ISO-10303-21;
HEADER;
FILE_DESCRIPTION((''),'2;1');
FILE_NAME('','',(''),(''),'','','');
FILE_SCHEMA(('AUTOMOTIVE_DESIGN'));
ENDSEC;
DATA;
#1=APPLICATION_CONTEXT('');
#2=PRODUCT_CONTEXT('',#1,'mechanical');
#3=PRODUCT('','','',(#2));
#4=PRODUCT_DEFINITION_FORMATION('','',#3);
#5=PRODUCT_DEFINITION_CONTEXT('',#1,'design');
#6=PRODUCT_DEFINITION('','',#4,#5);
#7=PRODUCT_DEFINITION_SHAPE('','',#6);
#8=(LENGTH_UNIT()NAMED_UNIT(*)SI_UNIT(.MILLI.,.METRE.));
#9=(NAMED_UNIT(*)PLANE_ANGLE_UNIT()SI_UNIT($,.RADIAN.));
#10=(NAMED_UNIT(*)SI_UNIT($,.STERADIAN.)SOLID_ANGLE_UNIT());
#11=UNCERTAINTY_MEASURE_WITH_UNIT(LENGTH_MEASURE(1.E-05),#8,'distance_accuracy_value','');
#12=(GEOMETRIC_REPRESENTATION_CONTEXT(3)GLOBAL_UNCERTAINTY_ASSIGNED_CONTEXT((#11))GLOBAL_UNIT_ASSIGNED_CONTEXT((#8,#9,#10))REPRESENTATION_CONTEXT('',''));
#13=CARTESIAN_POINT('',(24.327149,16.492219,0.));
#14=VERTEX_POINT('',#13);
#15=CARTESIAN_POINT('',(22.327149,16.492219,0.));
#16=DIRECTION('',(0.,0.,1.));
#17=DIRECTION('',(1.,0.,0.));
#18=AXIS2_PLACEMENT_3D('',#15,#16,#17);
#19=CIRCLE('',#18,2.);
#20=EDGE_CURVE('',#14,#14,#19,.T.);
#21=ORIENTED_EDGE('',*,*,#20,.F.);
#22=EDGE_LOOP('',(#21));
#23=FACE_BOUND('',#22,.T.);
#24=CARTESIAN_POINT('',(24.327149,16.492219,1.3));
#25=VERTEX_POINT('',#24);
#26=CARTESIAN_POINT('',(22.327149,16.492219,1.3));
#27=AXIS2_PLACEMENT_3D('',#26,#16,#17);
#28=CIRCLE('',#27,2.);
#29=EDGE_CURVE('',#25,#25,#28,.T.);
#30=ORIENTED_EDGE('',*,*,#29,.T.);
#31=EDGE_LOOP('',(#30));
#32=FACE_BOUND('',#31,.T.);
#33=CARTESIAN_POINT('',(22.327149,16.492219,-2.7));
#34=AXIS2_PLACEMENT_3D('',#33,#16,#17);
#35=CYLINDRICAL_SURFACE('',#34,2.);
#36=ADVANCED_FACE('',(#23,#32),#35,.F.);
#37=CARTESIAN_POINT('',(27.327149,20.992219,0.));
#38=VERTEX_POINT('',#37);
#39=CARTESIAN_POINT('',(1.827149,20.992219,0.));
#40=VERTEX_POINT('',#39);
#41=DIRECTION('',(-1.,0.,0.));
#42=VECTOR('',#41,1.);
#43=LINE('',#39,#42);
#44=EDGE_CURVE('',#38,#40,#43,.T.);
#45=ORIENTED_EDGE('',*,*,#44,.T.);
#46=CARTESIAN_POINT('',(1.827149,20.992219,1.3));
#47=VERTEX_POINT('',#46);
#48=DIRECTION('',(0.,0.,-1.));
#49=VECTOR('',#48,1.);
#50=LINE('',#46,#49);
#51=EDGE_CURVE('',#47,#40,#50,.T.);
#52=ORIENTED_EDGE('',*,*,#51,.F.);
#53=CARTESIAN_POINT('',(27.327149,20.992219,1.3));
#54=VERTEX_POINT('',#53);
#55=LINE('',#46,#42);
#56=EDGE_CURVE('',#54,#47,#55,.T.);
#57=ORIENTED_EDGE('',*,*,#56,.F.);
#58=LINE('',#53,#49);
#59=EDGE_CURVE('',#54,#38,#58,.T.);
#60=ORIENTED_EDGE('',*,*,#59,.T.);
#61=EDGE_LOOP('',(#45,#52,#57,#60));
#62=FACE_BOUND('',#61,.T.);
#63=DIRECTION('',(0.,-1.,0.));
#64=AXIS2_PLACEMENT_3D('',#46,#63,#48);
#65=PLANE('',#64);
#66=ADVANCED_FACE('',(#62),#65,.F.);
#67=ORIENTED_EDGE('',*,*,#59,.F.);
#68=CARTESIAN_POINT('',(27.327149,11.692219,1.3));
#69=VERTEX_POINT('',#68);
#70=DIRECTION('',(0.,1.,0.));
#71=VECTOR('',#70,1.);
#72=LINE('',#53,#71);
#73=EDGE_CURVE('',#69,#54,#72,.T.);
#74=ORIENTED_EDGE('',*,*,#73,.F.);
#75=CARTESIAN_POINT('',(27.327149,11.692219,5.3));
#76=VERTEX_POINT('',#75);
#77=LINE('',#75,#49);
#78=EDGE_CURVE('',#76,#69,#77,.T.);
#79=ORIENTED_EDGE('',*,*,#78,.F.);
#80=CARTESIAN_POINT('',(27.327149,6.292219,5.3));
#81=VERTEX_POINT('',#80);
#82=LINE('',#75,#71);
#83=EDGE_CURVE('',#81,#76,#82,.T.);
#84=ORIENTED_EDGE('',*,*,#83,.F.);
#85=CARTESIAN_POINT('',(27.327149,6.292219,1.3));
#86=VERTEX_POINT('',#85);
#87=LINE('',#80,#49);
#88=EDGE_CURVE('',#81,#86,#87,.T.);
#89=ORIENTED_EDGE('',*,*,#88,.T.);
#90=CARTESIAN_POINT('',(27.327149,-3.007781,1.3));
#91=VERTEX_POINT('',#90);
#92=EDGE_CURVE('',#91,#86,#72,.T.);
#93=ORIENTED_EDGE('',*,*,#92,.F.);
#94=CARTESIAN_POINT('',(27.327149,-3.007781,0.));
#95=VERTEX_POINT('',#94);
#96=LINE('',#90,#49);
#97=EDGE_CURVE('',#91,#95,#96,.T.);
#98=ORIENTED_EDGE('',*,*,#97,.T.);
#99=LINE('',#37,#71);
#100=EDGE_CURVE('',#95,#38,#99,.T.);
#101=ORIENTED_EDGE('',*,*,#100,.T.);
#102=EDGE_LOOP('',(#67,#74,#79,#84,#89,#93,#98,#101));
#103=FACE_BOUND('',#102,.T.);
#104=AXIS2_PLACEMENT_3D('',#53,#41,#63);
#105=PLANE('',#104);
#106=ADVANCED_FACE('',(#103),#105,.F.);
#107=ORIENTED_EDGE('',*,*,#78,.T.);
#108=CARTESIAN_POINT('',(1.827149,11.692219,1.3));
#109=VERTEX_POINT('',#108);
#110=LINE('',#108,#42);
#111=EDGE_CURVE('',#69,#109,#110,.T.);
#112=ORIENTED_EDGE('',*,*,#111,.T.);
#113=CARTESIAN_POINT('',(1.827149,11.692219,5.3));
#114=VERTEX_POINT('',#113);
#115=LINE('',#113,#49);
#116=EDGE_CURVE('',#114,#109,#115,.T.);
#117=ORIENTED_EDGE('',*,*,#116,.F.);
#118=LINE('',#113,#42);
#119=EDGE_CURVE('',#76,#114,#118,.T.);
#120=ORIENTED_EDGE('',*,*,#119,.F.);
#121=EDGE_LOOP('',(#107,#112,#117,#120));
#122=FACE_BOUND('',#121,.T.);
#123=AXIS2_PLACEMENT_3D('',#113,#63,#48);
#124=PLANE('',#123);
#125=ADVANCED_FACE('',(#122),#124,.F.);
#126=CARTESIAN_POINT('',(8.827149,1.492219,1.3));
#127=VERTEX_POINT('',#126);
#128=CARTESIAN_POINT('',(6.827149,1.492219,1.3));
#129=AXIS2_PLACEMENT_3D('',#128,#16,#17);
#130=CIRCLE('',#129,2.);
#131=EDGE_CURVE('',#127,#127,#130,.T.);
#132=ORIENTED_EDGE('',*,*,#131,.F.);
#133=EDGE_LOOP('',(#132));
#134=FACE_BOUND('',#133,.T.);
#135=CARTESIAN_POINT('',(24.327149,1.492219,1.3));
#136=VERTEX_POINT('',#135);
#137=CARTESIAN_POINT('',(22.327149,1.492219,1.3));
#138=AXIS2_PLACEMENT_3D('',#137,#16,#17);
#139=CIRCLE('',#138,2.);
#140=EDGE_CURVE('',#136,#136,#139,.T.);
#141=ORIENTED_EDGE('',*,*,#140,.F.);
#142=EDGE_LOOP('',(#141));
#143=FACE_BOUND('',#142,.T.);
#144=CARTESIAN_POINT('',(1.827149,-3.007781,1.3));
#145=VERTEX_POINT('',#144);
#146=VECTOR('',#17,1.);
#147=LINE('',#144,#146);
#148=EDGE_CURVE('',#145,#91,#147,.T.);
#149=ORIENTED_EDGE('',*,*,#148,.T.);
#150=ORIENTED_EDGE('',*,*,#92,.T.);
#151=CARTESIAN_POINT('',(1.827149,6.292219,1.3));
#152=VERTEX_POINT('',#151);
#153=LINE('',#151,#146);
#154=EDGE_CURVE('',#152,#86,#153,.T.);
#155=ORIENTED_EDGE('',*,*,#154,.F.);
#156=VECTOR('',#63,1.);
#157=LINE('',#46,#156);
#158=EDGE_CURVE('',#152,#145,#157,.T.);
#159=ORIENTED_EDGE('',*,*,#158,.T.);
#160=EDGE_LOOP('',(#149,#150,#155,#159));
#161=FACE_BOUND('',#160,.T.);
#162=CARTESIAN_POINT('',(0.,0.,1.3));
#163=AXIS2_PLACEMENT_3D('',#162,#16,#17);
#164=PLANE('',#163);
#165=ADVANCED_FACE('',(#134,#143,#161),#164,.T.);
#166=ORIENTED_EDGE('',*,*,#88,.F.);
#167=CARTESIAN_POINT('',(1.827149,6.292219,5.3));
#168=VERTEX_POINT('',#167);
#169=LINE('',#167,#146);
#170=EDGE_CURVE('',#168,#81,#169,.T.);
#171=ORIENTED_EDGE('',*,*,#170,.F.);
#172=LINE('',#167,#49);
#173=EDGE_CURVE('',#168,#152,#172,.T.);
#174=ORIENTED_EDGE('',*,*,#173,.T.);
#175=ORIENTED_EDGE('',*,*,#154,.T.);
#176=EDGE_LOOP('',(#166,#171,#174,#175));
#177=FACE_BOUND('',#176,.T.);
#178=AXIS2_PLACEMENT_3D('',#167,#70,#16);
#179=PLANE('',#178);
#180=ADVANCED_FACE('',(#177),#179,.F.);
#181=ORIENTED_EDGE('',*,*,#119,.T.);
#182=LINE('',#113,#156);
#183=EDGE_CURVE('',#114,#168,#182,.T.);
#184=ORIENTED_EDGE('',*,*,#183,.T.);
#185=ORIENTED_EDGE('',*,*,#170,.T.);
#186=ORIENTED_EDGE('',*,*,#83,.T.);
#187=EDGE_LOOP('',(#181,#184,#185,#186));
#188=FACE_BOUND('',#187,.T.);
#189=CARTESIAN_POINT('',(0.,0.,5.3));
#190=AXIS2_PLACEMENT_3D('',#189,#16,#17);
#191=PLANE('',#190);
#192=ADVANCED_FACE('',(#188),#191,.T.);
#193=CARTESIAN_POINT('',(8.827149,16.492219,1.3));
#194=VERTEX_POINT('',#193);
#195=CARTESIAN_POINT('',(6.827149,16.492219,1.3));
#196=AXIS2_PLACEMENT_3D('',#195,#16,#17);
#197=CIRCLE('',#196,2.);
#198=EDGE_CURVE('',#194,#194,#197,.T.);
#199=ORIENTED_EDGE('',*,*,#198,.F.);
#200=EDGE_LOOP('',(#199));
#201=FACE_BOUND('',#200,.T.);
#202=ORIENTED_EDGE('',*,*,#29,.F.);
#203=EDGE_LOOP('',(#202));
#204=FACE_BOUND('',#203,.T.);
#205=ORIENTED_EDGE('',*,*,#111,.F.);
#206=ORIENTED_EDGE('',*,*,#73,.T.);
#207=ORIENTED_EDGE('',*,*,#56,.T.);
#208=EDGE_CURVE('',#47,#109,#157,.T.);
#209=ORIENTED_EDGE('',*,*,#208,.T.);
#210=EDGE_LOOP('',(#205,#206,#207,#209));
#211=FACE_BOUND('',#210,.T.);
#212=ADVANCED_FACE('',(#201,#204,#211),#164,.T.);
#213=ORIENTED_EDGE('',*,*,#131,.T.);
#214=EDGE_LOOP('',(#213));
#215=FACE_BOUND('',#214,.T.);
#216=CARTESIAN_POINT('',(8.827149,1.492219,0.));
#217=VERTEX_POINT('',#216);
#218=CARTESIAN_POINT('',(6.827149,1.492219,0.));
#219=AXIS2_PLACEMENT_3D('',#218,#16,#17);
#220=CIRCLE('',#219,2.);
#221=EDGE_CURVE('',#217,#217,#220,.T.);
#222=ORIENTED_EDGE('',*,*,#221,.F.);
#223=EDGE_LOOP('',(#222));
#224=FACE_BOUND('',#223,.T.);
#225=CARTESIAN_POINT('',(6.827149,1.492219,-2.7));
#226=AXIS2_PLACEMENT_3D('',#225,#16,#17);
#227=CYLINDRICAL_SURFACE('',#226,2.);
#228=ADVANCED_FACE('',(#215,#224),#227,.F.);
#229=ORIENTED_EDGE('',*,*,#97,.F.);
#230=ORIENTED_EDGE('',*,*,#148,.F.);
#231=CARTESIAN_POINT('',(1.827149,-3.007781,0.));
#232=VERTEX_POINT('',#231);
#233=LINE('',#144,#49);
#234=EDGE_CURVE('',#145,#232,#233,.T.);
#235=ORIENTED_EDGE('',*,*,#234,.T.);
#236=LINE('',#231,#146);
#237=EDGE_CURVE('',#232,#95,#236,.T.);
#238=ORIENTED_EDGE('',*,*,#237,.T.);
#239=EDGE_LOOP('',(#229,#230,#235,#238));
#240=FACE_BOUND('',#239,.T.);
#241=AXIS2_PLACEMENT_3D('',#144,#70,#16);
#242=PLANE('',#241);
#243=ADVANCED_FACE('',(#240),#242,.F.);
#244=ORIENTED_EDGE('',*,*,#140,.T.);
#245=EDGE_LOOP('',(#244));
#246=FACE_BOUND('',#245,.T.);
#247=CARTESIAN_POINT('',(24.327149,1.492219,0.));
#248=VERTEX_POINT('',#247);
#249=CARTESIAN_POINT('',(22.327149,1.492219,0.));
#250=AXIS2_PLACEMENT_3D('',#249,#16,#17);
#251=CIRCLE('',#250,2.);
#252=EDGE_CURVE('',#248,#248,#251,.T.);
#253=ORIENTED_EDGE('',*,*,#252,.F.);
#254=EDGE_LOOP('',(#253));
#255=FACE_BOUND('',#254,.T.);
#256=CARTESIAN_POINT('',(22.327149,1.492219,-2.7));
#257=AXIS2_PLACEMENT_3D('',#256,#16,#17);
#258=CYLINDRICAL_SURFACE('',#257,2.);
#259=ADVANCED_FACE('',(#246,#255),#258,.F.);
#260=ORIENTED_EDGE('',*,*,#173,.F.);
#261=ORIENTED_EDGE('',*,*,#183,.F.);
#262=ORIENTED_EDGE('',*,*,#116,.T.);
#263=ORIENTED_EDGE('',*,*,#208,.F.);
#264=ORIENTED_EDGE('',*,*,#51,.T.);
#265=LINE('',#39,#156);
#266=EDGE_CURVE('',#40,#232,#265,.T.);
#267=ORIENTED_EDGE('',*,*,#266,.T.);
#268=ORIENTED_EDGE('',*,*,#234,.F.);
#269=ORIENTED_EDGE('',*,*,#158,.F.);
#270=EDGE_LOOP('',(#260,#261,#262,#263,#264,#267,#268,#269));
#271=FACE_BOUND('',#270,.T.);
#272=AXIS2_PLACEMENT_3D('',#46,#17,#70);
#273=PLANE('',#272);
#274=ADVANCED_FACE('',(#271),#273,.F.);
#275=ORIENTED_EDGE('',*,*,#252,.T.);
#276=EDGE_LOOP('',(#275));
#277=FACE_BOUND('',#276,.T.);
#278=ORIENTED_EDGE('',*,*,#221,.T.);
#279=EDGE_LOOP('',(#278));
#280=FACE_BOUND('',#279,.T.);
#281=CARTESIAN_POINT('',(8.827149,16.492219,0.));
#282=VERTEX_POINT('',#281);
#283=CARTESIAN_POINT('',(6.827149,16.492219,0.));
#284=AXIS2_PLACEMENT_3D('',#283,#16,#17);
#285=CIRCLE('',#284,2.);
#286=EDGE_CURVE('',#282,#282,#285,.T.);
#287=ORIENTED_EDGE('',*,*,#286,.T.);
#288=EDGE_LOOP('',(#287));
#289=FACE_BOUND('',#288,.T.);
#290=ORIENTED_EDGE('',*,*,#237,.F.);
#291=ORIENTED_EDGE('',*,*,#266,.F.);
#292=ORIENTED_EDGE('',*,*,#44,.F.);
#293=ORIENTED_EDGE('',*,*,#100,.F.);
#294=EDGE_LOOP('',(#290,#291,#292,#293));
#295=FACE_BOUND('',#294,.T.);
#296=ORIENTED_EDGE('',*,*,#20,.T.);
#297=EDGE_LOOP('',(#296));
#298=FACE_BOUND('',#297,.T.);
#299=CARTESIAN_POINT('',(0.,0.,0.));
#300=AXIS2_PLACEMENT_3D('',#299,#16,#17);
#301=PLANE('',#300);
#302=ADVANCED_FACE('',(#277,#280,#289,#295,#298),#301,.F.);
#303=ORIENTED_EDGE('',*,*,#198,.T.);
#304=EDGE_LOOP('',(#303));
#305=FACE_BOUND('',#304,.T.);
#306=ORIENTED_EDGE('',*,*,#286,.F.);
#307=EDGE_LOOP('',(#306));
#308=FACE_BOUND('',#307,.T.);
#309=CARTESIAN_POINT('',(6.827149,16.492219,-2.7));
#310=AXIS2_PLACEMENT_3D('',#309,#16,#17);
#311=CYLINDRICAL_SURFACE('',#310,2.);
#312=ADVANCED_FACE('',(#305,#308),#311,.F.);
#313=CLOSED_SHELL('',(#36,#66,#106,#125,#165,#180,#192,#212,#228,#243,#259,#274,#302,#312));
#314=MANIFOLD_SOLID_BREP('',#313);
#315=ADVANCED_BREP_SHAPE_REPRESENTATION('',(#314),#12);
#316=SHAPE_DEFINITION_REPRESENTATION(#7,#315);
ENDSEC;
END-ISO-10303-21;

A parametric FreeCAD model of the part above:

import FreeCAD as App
import Part
import Sketcher
Q = App.Units.Quantity


def add_polygon(sketch, points):
    """Adds a closed chain of lines whose ends are joined by coincident constraints."""
    first, n = sketch.GeometryCount, len(points)
    for a, b in zip(points, points[1:] + points[:1]):
        sketch.addGeometry(Part.LineSegment(App.Vector(*a, 0), App.Vector(*b, 0)), False)
    for i in range(n):
        sketch.addConstraint(Sketcher.Constraint("Coincident", first + i, 2, first + (i + 1) % n, 1))

doc = App.newDocument("Part")
params = doc.addObject("Spreadsheet::Sheet", "Params")
for row, (alias, value) in enumerate([
    ("sketch1_height", "24 mm"),
    ("sketch1_width", "25.5 mm"),
    ("pad1_length", "1.3 mm"),
    ("sketch2_width", "25.5 mm"),
    ("sketch2_height", "5.4 mm"),
    ("pad2_length", "4 mm"),
    ("sketch3_diameter", "4 mm"),
    ("pocket1_length", "4 mm"),
    ("sketch4_diameter", "4 mm"),
    ("pocket2_length", "4 mm"),
], start=1):
    params.set(f"A{row}", alias)
    params.set(f"B{row}", "=" + value)
    params.setAlias(f"B{row}", alias)

body = doc.addObject("PartDesign::Body", "Body")

sketch1 = body.newObject("Sketcher::SketchObject", "Sketch")
sketch1.AttachmentSupport = (doc.getObject("XY_Plane"), [""])
sketch1.MapMode = "FlatFace"
add_polygon(sketch1, [(2, 21), (2, -3), (27, -3), (27, 21)])
sketch1.addConstraint([
    Sketcher.Constraint("Vertical", 0),
    Sketcher.Constraint("Horizontal", 1),
    Sketcher.Constraint("Vertical", 2),
    Sketcher.Constraint("Horizontal", 3),
    Sketcher.Constraint("DistanceY", 0, 2, 0, 1, Q("24 mm")),
    Sketcher.Constraint("DistanceX", 1, 1, 1, 2, Q("25.5 mm")),
    Sketcher.Constraint("DistanceX", -1, 1, 0, 2, Q("1.827149 mm")),
    Sketcher.Constraint("DistanceY", 0, 2, -1, 1, Q("3.007781 mm")),
])
sketch1.setExpression("Constraints[8]", "Params.sketch1_height")
sketch1.setExpression("Constraints[9]", "Params.sketch1_width")
pad1 = body.newObject("PartDesign::Pad", "Pad")
pad1.Profile = sketch1
pad1.setExpression("Length", "Params.pad1_length")

sketch2 = body.newObject("Sketcher::SketchObject", "Sketch001")
sketch2.AttachmentSupport = (doc.getObject("XY_Plane"), [""])
sketch2.MapMode = "FlatFace"
sketch2.AttachmentOffset = App.Placement(App.Vector(0, 0, 1.3), App.Rotation())
add_polygon(sketch2, [(2, 12), (2, 6), (27, 6), (27, 12)])
sketch2.addConstraint([
    Sketcher.Constraint("Vertical", 0),
    Sketcher.Constraint("Horizontal", 1),
    Sketcher.Constraint("Vertical", 2),
    Sketcher.Constraint("Horizontal", 3),
    Sketcher.Constraint("DistanceX", 1, 1, 1, 2, Q("25.5 mm")),
    Sketcher.Constraint("DistanceY", 0, 2, 0, 1, Q("5.4 mm")),
    Sketcher.Constraint("DistanceX", -1, 1, 0, 2, Q("1.827149 mm")),
    Sketcher.Constraint("DistanceY", -1, 1, 0, 2, Q("6.292219 mm")),
])
sketch2.setExpression("Constraints[8]", "Params.sketch2_width")
sketch2.setExpression("Constraints[9]", "Params.sketch2_height")
pad2 = body.newObject("PartDesign::Pad", "Pad001")
pad2.Profile = sketch2
pad2.setExpression("Length", "Params.pad2_length")

sketch3 = body.newObject("Sketcher::SketchObject", "Sketch002")
sketch3.AttachmentSupport = (doc.getObject("XY_Plane"), [""])
sketch3.MapMode = "FlatFace"
sketch3.AttachmentOffset = App.Placement(App.Vector(0, 0, 1.3), App.Rotation())
sketch3.addGeometry([
    Part.Circle(App.Vector(22.3, 16.5, 0), App.Vector(0, 0, 1), 2),
    Part.Circle(App.Vector(6.8, 16.5, 0), App.Vector(0, 0, 1), 2),
], False)
sketch3.addConstraint([
    Sketcher.Constraint("Equal", 0, 1),
    Sketcher.Constraint("Horizontal", 0, 3, 1, 3),
    Sketcher.Constraint("Diameter", 0, Q("4 mm")),
    Sketcher.Constraint("DistanceX", 1, 3, 0, 3, Q("15.5 mm")),
    Sketcher.Constraint("DistanceX", -1, 1, 0, 3, Q("22.327149 mm")),
    Sketcher.Constraint("DistanceY", -1, 1, 0, 3, Q("16.492219 mm")),
])
sketch3.setExpression("Constraints[2]", "Params.sketch3_diameter")
pocket1 = body.newObject("PartDesign::Pocket", "Pocket")
pocket1.Profile = sketch3
pocket1.setExpression("Length", "Params.pocket1_length")

sketch4 = body.newObject("Sketcher::SketchObject", "Sketch003")
sketch4.AttachmentSupport = (doc.getObject("XY_Plane"), [""])
sketch4.MapMode = "FlatFace"
sketch4.AttachmentOffset = App.Placement(App.Vector(0, 0, 1.3), App.Rotation())
sketch4.addGeometry([
    Part.Circle(App.Vector(6.8, 1.5, 0), App.Vector(0, 0, 1), 2),
    Part.Circle(App.Vector(22.3, 1.5, 0), App.Vector(0, 0, 1), 2),
], False)
sketch4.addConstraint([
    Sketcher.Constraint("Equal", 0, 1),
    Sketcher.Constraint("Horizontal", 0, 3, 1, 3),
    Sketcher.Constraint("Diameter", 0, Q("4 mm")),
    Sketcher.Constraint("DistanceX", 0, 3, 1, 3, Q("15.5 mm")),
    Sketcher.Constraint("DistanceX", -1, 1, 0, 3, Q("6.827149 mm")),
    Sketcher.Constraint("DistanceY", -1, 1, 0, 3, Q("1.492219 mm")),
])
sketch4.setExpression("Constraints[2]", "Params.sketch4_diameter")
pocket2 = body.newObject("PartDesign::Pocket", "Pocket001")
pocket2.Profile = sketch4
pocket2.setExpression("Length", "Params.pocket2_length")

doc.recompute()
